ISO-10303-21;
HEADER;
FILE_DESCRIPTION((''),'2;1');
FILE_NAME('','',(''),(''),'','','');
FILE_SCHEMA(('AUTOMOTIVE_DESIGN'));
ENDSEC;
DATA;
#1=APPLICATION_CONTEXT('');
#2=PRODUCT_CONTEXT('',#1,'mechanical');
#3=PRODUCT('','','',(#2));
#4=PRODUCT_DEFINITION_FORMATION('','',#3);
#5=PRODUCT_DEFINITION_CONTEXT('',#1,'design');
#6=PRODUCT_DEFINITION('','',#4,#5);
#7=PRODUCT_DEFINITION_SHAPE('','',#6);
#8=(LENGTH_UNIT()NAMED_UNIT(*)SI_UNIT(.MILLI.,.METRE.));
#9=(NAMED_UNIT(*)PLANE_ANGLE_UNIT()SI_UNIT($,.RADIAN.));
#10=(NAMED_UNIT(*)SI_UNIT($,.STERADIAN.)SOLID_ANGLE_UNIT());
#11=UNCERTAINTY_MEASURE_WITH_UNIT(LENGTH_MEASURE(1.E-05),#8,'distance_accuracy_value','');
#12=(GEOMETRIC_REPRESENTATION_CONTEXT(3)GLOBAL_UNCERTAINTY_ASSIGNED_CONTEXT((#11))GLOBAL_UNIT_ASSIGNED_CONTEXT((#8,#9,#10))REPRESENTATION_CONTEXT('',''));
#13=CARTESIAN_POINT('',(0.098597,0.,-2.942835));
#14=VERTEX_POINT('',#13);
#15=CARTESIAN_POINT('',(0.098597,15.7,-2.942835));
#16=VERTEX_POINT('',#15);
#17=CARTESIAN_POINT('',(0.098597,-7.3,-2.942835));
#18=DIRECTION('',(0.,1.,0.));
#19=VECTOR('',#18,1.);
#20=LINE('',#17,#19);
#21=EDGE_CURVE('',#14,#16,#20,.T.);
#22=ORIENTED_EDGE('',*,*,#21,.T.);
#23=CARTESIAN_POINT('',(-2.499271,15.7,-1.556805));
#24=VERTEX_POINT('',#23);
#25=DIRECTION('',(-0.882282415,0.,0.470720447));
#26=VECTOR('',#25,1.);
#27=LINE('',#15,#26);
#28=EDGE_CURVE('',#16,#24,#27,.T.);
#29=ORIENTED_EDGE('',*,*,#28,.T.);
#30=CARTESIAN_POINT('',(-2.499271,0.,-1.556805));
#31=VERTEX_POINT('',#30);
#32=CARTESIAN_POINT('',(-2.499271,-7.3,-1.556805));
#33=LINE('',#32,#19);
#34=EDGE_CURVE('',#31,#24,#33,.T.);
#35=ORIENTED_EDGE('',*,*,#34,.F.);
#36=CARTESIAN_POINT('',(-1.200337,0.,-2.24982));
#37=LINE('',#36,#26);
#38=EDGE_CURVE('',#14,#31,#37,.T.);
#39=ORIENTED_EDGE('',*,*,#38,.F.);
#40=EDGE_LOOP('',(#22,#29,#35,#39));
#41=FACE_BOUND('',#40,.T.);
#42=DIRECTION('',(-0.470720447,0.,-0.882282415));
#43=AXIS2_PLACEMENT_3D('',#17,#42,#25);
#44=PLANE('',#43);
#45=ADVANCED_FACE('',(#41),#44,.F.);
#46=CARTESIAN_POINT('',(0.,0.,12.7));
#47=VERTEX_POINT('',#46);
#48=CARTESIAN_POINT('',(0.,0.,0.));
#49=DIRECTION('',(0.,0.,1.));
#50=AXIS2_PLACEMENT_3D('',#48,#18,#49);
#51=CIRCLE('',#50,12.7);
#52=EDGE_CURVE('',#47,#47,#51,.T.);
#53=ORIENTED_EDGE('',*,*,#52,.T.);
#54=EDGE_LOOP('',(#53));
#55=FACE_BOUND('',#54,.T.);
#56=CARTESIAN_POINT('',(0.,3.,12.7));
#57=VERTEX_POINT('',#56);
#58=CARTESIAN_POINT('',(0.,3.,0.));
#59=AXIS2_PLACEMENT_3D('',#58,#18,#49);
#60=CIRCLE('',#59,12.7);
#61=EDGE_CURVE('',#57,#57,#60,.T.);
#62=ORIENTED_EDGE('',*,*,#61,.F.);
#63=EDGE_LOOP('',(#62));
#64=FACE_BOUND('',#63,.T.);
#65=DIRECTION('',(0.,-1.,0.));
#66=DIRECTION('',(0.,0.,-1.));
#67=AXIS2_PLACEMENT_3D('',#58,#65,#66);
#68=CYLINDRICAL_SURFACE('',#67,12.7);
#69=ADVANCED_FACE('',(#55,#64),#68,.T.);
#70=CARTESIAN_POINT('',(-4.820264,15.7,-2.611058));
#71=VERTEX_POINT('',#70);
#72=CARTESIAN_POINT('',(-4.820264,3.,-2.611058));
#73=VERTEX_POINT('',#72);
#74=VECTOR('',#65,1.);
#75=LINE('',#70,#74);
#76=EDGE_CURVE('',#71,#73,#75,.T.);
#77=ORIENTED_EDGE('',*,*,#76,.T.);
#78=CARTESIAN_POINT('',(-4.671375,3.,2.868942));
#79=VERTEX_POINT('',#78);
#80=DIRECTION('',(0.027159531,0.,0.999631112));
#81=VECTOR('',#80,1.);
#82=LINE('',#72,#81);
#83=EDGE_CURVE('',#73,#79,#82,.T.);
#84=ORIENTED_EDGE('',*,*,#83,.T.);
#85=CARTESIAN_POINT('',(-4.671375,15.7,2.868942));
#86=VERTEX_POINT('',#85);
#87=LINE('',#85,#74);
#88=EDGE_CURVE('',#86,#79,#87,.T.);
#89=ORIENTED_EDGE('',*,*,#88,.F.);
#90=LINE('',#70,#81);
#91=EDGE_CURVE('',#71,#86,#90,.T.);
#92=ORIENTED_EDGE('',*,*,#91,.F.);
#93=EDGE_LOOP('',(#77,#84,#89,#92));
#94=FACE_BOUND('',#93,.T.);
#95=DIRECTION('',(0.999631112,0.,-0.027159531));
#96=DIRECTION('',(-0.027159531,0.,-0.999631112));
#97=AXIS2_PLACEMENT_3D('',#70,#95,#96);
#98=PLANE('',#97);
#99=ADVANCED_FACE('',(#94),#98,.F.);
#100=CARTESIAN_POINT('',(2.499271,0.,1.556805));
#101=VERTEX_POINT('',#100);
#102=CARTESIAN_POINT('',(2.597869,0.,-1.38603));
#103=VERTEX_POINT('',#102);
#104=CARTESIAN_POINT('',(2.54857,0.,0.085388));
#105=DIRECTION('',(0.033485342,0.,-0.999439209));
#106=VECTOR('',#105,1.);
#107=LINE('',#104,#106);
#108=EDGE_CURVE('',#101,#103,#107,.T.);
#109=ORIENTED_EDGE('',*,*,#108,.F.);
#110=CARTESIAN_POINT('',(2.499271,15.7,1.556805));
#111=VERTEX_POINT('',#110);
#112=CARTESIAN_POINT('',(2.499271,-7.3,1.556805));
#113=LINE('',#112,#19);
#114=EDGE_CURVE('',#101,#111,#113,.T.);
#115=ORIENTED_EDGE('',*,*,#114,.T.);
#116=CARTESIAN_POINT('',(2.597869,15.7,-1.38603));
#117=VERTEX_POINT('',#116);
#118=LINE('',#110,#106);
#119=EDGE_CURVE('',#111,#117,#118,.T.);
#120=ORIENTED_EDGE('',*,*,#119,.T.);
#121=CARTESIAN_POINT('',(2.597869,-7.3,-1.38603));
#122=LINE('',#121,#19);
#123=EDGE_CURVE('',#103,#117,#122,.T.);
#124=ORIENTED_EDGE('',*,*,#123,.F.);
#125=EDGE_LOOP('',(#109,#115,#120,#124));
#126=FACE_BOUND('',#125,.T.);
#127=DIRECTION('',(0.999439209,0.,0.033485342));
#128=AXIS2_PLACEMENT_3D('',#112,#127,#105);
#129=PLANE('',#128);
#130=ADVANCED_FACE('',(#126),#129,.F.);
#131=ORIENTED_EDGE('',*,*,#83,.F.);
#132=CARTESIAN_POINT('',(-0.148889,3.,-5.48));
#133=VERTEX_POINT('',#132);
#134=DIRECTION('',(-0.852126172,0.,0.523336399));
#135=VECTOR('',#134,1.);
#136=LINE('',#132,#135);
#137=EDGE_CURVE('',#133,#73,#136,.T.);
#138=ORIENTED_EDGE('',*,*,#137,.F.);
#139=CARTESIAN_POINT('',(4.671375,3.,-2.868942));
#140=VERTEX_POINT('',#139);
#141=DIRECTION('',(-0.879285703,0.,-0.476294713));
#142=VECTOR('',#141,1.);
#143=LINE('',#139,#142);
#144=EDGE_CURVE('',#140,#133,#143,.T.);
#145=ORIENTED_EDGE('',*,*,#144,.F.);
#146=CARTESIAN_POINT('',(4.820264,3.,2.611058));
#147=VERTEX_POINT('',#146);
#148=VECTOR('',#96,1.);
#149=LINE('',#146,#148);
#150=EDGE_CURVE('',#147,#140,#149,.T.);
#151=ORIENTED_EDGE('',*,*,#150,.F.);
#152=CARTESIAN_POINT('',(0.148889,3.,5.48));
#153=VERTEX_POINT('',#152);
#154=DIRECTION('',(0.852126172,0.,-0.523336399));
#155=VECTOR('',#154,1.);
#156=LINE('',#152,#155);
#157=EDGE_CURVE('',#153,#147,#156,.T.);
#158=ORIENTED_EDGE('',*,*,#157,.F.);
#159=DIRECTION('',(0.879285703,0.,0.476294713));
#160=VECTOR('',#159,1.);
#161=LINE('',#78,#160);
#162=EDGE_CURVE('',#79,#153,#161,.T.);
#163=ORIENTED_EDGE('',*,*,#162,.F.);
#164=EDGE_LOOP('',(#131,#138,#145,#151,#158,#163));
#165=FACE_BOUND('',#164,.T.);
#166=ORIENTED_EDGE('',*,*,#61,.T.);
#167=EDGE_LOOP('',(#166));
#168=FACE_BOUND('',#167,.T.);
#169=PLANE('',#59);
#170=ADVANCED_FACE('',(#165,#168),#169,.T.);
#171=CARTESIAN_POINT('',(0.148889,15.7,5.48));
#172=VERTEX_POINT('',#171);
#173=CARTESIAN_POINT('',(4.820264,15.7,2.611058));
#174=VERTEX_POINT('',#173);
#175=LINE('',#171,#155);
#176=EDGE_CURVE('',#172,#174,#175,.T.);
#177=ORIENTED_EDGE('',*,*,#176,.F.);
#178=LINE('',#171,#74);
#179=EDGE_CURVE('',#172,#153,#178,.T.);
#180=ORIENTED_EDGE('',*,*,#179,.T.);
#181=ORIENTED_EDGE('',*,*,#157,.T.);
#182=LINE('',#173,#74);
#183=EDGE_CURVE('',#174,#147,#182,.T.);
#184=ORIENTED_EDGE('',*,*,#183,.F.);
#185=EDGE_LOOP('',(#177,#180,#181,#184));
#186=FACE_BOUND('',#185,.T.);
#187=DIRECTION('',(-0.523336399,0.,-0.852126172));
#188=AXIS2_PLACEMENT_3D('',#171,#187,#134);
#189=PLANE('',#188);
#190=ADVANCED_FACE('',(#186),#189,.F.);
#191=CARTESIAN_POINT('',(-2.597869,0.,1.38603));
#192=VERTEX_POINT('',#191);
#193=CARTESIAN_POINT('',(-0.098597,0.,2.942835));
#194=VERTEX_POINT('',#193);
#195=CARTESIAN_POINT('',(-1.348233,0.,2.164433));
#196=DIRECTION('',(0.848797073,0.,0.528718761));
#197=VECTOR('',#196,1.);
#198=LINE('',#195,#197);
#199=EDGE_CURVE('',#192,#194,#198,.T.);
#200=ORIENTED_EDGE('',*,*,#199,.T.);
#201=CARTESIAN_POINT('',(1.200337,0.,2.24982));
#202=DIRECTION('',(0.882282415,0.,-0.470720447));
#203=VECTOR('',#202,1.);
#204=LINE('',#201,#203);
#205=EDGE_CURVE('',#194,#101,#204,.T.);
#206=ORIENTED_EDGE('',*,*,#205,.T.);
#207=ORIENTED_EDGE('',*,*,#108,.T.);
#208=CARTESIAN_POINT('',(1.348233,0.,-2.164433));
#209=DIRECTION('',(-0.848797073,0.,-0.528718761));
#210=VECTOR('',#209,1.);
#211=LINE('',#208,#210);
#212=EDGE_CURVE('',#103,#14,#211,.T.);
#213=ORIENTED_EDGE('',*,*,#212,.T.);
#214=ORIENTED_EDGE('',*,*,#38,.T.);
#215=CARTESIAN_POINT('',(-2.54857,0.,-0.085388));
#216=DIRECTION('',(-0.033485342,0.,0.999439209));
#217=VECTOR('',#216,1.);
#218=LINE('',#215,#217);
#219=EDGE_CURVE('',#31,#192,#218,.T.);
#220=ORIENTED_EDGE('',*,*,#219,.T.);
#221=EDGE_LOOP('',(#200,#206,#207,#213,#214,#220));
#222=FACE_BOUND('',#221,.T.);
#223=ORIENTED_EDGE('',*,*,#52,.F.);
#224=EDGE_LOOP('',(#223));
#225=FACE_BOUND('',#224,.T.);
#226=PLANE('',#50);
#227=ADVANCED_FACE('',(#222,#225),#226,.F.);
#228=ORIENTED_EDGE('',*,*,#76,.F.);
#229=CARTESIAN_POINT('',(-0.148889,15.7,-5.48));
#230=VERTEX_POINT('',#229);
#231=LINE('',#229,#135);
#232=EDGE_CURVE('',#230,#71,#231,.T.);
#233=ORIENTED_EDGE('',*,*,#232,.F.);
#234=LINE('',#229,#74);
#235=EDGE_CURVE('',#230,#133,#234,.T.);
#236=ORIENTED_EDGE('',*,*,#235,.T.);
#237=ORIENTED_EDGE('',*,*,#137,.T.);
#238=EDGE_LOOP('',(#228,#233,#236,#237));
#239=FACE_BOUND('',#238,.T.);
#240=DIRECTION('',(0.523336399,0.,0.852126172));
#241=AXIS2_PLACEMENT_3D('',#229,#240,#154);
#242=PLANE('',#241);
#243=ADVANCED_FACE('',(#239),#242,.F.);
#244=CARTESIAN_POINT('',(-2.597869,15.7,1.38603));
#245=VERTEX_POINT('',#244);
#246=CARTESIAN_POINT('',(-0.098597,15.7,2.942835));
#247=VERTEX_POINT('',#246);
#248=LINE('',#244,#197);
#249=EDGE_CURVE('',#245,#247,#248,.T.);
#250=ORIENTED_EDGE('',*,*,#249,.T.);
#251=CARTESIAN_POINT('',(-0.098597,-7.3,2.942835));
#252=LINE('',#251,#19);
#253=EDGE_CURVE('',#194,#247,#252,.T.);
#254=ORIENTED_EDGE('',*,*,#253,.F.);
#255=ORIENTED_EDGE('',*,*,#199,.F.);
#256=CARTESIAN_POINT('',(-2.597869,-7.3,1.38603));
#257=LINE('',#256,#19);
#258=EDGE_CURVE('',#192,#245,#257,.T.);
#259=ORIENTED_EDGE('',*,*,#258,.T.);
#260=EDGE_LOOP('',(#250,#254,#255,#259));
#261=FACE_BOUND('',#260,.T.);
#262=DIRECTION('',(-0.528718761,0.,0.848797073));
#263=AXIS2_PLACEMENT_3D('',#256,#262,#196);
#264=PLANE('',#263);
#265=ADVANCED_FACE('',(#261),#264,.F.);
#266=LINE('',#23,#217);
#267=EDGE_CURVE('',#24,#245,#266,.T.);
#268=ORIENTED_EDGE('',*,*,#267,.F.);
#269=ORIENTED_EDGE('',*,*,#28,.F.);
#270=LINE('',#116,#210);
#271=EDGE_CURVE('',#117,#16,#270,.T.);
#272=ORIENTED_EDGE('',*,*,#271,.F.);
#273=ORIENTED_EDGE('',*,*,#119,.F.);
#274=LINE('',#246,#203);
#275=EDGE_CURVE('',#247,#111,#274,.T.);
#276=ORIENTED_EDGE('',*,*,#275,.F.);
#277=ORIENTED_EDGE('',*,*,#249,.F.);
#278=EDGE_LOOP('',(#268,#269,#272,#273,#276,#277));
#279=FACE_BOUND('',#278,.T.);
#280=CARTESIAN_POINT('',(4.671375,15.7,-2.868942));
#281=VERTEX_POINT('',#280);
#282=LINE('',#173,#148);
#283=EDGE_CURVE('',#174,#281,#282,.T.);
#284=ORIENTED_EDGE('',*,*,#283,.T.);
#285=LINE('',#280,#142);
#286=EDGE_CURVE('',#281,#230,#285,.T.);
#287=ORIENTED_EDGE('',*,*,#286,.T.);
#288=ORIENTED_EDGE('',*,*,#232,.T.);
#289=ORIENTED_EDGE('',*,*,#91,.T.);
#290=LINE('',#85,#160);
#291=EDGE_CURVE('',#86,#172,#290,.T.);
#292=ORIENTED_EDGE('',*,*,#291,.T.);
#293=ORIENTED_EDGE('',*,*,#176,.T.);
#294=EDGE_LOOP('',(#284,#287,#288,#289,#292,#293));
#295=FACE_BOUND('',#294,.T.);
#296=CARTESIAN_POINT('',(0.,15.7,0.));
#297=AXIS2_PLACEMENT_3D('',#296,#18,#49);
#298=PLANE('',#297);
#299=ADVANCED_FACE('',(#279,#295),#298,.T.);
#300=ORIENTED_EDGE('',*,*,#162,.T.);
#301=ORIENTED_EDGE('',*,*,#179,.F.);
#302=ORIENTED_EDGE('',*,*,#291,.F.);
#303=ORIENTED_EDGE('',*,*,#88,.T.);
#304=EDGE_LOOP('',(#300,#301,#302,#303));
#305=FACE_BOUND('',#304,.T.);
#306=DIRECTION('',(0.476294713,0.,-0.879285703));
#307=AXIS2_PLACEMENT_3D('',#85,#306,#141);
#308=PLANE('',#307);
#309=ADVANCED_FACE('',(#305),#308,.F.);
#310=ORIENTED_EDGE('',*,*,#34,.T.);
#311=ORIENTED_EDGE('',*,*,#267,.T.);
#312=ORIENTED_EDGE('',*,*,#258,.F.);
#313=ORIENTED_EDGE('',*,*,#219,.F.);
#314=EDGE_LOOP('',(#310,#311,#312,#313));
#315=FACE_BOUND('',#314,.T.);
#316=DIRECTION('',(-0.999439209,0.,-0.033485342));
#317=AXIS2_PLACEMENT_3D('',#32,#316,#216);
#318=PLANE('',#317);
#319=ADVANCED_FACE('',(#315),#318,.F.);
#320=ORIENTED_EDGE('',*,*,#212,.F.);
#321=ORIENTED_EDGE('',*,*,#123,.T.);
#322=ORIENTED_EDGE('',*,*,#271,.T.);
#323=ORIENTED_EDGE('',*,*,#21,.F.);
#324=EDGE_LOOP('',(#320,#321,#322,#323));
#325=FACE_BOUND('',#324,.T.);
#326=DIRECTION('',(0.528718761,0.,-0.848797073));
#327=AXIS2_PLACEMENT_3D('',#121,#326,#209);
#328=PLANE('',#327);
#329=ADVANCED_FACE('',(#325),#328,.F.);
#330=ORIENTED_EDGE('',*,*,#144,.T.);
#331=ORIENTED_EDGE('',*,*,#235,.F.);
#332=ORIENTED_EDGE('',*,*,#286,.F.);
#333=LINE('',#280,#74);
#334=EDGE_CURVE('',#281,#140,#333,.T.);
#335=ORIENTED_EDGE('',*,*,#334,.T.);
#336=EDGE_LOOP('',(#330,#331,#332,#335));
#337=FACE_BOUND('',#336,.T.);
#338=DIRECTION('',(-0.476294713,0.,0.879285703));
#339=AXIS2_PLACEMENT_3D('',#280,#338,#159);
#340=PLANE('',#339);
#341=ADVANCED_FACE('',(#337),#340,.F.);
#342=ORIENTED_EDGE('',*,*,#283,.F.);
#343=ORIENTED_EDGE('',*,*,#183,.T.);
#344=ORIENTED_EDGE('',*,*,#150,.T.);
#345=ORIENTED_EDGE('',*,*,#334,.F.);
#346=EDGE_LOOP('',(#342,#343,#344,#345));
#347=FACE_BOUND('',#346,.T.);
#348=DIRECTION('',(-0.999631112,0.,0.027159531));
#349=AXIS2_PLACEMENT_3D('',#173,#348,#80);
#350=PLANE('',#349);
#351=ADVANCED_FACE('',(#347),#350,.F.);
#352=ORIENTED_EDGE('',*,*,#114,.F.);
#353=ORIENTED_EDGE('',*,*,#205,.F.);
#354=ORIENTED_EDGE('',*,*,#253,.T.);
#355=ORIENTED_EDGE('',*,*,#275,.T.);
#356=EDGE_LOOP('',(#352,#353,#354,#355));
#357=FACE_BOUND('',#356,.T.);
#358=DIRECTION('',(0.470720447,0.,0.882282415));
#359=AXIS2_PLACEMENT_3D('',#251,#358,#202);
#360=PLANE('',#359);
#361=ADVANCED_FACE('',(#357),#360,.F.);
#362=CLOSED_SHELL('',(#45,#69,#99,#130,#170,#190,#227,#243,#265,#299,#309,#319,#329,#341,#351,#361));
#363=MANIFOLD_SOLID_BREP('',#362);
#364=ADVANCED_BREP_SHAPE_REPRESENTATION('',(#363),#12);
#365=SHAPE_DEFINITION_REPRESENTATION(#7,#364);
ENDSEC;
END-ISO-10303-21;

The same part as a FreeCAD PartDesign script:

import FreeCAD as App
import Part
import Sketcher
from FreeCAD import Vector


def add_polygon(sketch, points):
    """Adds a closed chain of lines whose ends are joined by coincident constraints."""
    first, n = sketch.GeometryCount, len(points)
    for a, b in zip(points, points[1:] + points[:1]):
        sketch.addGeometry(Part.LineSegment(App.Vector(*a, 0), App.Vector(*b, 0)), False)
    for i in range(n):
        sketch.addConstraint(Sketcher.Constraint("Coincident", first + i, 2, first + (i + 1) % n, 1))

doc = App.newDocument("Part")
params = doc.addObject("Spreadsheet::Sheet", "Params")
for row, (alias, value) in enumerate([
    ("sketch1_diameter", "25.4 mm"),
    ("pad1_length", "3 mm"),
    ("pad2_length", "12.7 mm"),
    ("pocket1_length", "23 mm"),
], start=1):
    params.set(f"A{row}", alias)
    params.set(f"B{row}", "=" + value)
    params.setAlias(f"B{row}", alias)

body = doc.addObject("PartDesign::Body", "Body")

# Sketch on XZ plane
sketch1 = doc.addObject("Sketcher::SketchObject", "Sketch")
body.addObject(sketch1)
sketch1.AttachmentSupport = (doc.XZ_Plane, [""])
sketch1.MapMode = "FlatFace"
sketch1.addGeometry(Part.Circle(Vector(0, 0, 0), Vector(0, 0, 1), 13), False)
sketch1.addConstraint([
    Sketcher.Constraint("Coincident", 0, 3, -1, 1),
    Sketcher.Constraint("Diameter", 0, 25.4),
])
sketch1.setExpression("Constraints[1]", "Params.sketch1_diameter")
pad1 = doc.addObject("PartDesign::Pad", "Pad")
body.addObject(pad1)
pad1.Profile = sketch1
pad1.setExpression("Length", "Params.pad1_length")
pad1.Reversed = True

# Sketch on XZ plane
sketch2 = doc.addObject("Sketcher::SketchObject", "Sketch001")
body.addObject(sketch2)
sketch2.AttachmentSupport = (doc.XZ_Plane, [""])
sketch2.MapMode = "FlatFace"
sketch2.AttachmentOffset = App.Placement(Vector(0, 0, -3), App.Rotation())
add_polygon(sketch2, [(0, 5), (5, 3), (5, -3), (0, -5), (-5, -3), (-5, 3)])  # lines 0-5
sketch2.addConstraint([
    Sketcher.Constraint("Symmetric", 0, 2, 3, 2, -1, 1),
    Sketcher.Constraint("Symmetric", 1, 2, 4, 2, -1, 1),
    Sketcher.Constraint("Symmetric", 2, 2, 5, 2, -1, 1),
    Sketcher.Constraint("Equal", 0, 1),
    Sketcher.Constraint("Equal", 1, 2),
    Sketcher.Constraint("DistanceY", 2, 2, -1, 1, 5.48),
    Sketcher.Constraint("DistanceY", 1, 2, 0, 2, 5.48),
    Sketcher.Constraint("DistanceY", -1, 1, 0, 2, 2.611058),
    Sketcher.Constraint("DistanceX", 2, 2, -1, 1, 0.148889),
])
pad2 = doc.addObject("PartDesign::Pad", "Pad001")
body.addObject(pad2)
pad2.Profile = sketch2
pad2.setExpression("Length", "Params.pad2_length")
pad2.Reversed = True

# Sketch on XZ plane
sketch3 = doc.addObject("Sketcher::SketchObject", "Sketch002")
body.addObject(sketch3)
sketch3.AttachmentSupport = (doc.XZ_Plane, [""])
sketch3.MapMode = "FlatFace"
sketch3.AttachmentOffset = App.Placement(Vector(0, 0, -15.7), App.Rotation())
add_polygon(sketch3, [(-2.6, 1.4), (-0.1, 2.9), (2.5, 1.6), (2.6, -1.4), (0.1, -2.9), (-2.5, -1.6)])  # lines 0-5
sketch3.addConstraint([
    Sketcher.Constraint("Symmetric", 0, 2, 3, 2, -1, 1),
    Sketcher.Constraint("Symmetric", 1, 2, 4, 2, -1, 1),
    Sketcher.Constraint("Symmetric", 2, 2, 5, 2, -1, 1),
    Sketcher.Constraint("Equal", 0, 1),
    Sketcher.Constraint("Equal", 1, 2),
    Sketcher.Constraint("DistanceX", -1, 1, 1, 2, 2.499271),
    Sketcher.Constraint("DistanceX", -1, 1, 2, 2, 2.597869),
    Sketcher.Constraint("DistanceY", 2, 2, -1, 1, 1.38603),
    Sketcher.Constraint("DistanceX", 0, 2, 1, 2, 2.597869),
])
pocket1 = doc.addObject("PartDesign::Pocket", "Pocket")
body.addObject(pocket1)
pocket1.Profile = sketch3
pocket1.setExpression("Length", "Params.pocket1_length")
pocket1.Reversed = True

doc.recompute()
